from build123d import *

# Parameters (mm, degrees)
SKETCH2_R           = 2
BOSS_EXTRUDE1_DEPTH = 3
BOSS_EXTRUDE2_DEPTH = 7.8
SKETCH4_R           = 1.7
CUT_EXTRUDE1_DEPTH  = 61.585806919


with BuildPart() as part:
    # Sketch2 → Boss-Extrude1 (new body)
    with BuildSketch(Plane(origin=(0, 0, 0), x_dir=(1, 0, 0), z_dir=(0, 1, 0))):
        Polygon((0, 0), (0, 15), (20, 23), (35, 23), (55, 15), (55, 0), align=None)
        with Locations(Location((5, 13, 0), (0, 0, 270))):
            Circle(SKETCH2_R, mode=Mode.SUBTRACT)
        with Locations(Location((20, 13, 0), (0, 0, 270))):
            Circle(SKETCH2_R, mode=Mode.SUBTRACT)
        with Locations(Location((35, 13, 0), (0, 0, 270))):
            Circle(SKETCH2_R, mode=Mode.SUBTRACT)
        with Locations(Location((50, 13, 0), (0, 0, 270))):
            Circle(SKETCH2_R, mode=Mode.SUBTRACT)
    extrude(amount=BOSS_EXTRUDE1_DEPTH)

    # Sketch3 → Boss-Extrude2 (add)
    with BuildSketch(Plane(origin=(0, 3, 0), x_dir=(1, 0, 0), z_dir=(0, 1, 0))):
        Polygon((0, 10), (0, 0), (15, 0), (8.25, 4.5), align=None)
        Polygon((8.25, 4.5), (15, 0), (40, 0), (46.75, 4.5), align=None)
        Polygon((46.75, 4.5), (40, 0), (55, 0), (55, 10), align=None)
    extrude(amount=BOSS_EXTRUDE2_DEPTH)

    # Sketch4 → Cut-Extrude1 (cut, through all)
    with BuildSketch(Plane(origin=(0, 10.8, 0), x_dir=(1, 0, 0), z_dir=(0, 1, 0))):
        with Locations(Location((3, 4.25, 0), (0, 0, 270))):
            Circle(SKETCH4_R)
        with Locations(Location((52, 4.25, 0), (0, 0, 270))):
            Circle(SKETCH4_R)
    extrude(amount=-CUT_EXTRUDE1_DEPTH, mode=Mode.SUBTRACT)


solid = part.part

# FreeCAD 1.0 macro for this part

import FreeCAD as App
import Part
import Sketcher
Q = App.Units.Quantity

doc = App.newDocument("Part")
body = doc.addObject("PartDesign::Body", "Body")

# Sketch on XZ plane
sketch1 = body.newObject("Sketcher::SketchObject", "Sketch")
sketch1.AttachmentSupport = (doc.getObject("XZ_Plane"), [""])
sketch1.MapMode = "FlatFace"
sketch1.addGeometry(Part.LineSegment(App.Vector(0, -15, 0), App.Vector(0, 0, 0)), False)
sketch1.addGeometry(Part.LineSegment(App.Vector(0, 0, 0), App.Vector(55, 0, 0)), False)
sketch1.addGeometry(Part.LineSegment(App.Vector(55, 0, 0), App.Vector(55, -15, 0)), False)
sketch1.addGeometry(Part.LineSegment(App.Vector(55, -15, 0), App.Vector(35, -23, 0)), False)
sketch1.addGeometry(Part.LineSegment(App.Vector(35, -23, 0), App.Vector(20, -23, 0)), False)
sketch1.addGeometry(Part.LineSegment(App.Vector(20, -23, 0), App.Vector(0, -15, 0)), False)
sketch1.addGeometry(Part.Circle(App.Vector(50, -13, 0), App.Vector(0, 0, 1), 2), False)
sketch1.addGeometry(Part.Circle(App.Vector(35, -13, 0), App.Vector(0, 0, 1), 2), False)
sketch1.addGeometry(Part.Circle(App.Vector(20, -13, 0), App.Vector(0, 0, 1), 2), False)
sketch1.addGeometry(Part.Circle(App.Vector(5, -13, 0), App.Vector(0, 0, 1), 2), False)
sketch1.addConstraint(Sketcher.Constraint("Coincident", 0, 2, 1, 1))
sketch1.addConstraint(Sketcher.Constraint("Coincident", 1, 2, 2, 1))
sketch1.addConstraint(Sketcher.Constraint("Coincident", 2, 2, 3, 1))
sketch1.addConstraint(Sketcher.Constraint("Coincident", 3, 2, 4, 1))
sketch1.addConstraint(Sketcher.Constraint("Coincident", 4, 2, 5, 1))
sketch1.addConstraint(Sketcher.Constraint("Coincident", 5, 2, 0, 1))
sketch1.addConstraint(Sketcher.Constraint("Vertical", 0))
sketch1.addConstraint(Sketcher.Constraint("Horizontal", 1))
sketch1.addConstraint(Sketcher.Constraint("Vertical", 2))
sketch1.addConstraint(Sketcher.Constraint("Horizontal", 4))
sketch1.addConstraint(Sketcher.Constraint("Coincident", 0, 2, -1, 1))
sketch1.addConstraint(Sketcher.Constraint("Equal", 6, 7))
sketch1.addConstraint(Sketcher.Constraint("Equal", 7, 8))
sketch1.addConstraint(Sketcher.Constraint("Equal", 8, 9))
sketch1.addConstraint(Sketcher.Constraint("Horizontal", 6, 3, 7, 3))
sketch1.addConstraint(Sketcher.Constraint("Horizontal", 7, 3, 8, 3))
sketch1.addConstraint(Sketcher.Constraint("Horizontal", 8, 3, 9, 3))
sketch1.addConstraint(Sketcher.Constraint("Horizontal", 2, 2, 5, 2))
sketch1.addConstraint(Sketcher.Constraint("Vertical", 7, 3, 3, 2))
sketch1.addConstraint(Sketcher.Constraint("Vertical", 8, 3, 4, 2))
sketch1.addConstraint(Sketcher.Constraint("Equal", 4, 0))
sketch1.addConstraint(Sketcher.Constraint("Equal", 3, 5))
sketch1.addConstraint(Sketcher.Constraint("Diameter", 6, Q("4 mm")))
sketch1.addConstraint(Sketcher.Constraint("DistanceX", 1, 1, 1, 2, Q("55 mm")))
sketch1.addConstraint(Sketcher.Constraint("DistanceX", 4, 2, 4, 1, Q("15 mm")))
sketch1.addConstraint(Sketcher.Constraint("DistanceX", -1, 1, 6, 3, Q("50 mm")))
sketch1.addConstraint(Sketcher.Constraint("DistanceY", 6, 3, -1, 1, Q("13 mm")))
sketch1.addConstraint(Sketcher.Constraint("DistanceX", -1, 1, 9, 3, Q("5 mm")))
sketch1.addConstraint(Sketcher.Constraint("DistanceY", 3, 2, -1, 1, Q("23 mm")))
pad1 = body.newObject("PartDesign::Pad", "Pad")
pad1.Profile = sketch1
pad1.Length = 3
pad1.Reversed = True

# Sketch on XZ plane
sketch2 = body.newObject("Sketcher::SketchObject", "Sketch001")
sketch2.AttachmentSupport = (doc.getObject("XZ_Plane"), [""])
sketch2.MapMode = "FlatFace"
sketch2.AttachmentOffset = App.Placement(App.Vector(0, 0, -3), App.Rotation())
sketch2.addGeometry(Part.LineSegment(App.Vector(0, -10, 0), App.Vector(0, 0, 0)), False)
sketch2.addGeometry(Part.LineSegment(App.Vector(0, 0, 0), App.Vector(55, 0, 0)), False)
sketch2.addGeometry(Part.LineSegment(App.Vector(55, 0, 0), App.Vector(55, -10, 0)), False)
sketch2.addGeometry(Part.LineSegment(App.Vector(55, -10, 0), App.Vector(46.75, -4.5, 0)), False)
sketch2.addGeometry(Part.LineSegment(App.Vector(46.75, -4.5, 0), App.Vector(8.25, -4.5, 0)), False)
sketch2.addGeometry(Part.LineSegment(App.Vector(8.25, -4.5, 0), App.Vector(0, -10, 0)), False)
sketch2.addConstraint(Sketcher.Constraint("Coincident", 0, 2, 1, 1))
sketch2.addConstraint(Sketcher.Constraint("Coincident", 1, 2, 2, 1))
sketch2.addConstraint(Sketcher.Constraint("Coincident", 2, 2, 3, 1))
sketch2.addConstraint(Sketcher.Constraint("Coincident", 3, 2, 4, 1))
sketch2.addConstraint(Sketcher.Constraint("Coincident", 4, 2, 5, 1))
sketch2.addConstraint(Sketcher.Constraint("Coincident", 5, 2, 0, 1))
sketch2.addConstraint(Sketcher.Constraint("Vertical", 0))
sketch2.addConstraint(Sketcher.Constraint("Horizontal", 1))
sketch2.addConstraint(Sketcher.Constraint("Vertical", 2))
sketch2.addConstraint(Sketcher.Constraint("Horizontal", 4))
sketch2.addConstraint(Sketcher.Constraint("Coincident", 0, 2, -1, 1))
sketch2.addConstraint(Sketcher.Constraint("Horizontal", 2, 2, 5, 2))
sketch2.addConstraint(Sketcher.Constraint("Equal", 3, 5))
sketch2.addConstraint(Sketcher.Constraint("DistanceX", 1, 1, 1, 2, Q("55 mm")))
sketch2.addConstraint(Sketcher.Constraint("DistanceY", 0, 1, 0, 2, Q("10 mm")))
sketch2.addConstraint(Sketcher.Constraint("DistanceX", 4, 2, 4, 1, Q("38.5 mm")))
sketch2.addConstraint(Sketcher.Constraint("DistanceY", 3, 2, -1, 1, Q("4.5 mm")))
pad2 = body.newObject("PartDesign::Pad", "Pad001")
pad2.Profile = sketch2
pad2.Length = 7.8
pad2.Reversed = True

# Sketch on XZ plane
sketch3 = body.newObject("Sketcher::SketchObject", "Sketch002")
sketch3.AttachmentSupport = (doc.getObject("XZ_Plane"), [""])
sketch3.MapMode = "FlatFace"
sketch3.AttachmentOffset = App.Placement(App.Vector(0, 0, -10.8), App.Rotation())
sketch3.addGeometry(Part.Circle(App.Vector(3, -4.25, 0), App.Vector(0, 0, 1), 1.7), False)
sketch3.addGeometry(Part.Circle(App.Vector(52, -4.25, 0), App.Vector(0, 0, 1), 1.7), False)
sketch3.addConstraint(Sketcher.Constraint("Equal", 0, 1))
sketch3.addConstraint(Sketcher.Constraint("Horizontal", 0, 3, 1, 3))
sketch3.addConstraint(Sketcher.Constraint("Diameter", 0, Q("3.4 mm")))
sketch3.addConstraint(Sketcher.Constraint("DistanceX", -1, 1, 0, 3, Q("3 mm")))
sketch3.addConstraint(Sketcher.Constraint("DistanceX", -1, 1, 1, 3, Q("52 mm")))
sketch3.addConstraint(Sketcher.Constraint("DistanceY", 0, 3, -1, 1, Q("4.25 mm")))
pocket1 = body.newObject("PartDesign::Pocket", "Pocket")
pocket1.Profile = sketch3
pocket1.Type = "ThroughAll"
pocket1.Reversed = True

doc.recompute()
